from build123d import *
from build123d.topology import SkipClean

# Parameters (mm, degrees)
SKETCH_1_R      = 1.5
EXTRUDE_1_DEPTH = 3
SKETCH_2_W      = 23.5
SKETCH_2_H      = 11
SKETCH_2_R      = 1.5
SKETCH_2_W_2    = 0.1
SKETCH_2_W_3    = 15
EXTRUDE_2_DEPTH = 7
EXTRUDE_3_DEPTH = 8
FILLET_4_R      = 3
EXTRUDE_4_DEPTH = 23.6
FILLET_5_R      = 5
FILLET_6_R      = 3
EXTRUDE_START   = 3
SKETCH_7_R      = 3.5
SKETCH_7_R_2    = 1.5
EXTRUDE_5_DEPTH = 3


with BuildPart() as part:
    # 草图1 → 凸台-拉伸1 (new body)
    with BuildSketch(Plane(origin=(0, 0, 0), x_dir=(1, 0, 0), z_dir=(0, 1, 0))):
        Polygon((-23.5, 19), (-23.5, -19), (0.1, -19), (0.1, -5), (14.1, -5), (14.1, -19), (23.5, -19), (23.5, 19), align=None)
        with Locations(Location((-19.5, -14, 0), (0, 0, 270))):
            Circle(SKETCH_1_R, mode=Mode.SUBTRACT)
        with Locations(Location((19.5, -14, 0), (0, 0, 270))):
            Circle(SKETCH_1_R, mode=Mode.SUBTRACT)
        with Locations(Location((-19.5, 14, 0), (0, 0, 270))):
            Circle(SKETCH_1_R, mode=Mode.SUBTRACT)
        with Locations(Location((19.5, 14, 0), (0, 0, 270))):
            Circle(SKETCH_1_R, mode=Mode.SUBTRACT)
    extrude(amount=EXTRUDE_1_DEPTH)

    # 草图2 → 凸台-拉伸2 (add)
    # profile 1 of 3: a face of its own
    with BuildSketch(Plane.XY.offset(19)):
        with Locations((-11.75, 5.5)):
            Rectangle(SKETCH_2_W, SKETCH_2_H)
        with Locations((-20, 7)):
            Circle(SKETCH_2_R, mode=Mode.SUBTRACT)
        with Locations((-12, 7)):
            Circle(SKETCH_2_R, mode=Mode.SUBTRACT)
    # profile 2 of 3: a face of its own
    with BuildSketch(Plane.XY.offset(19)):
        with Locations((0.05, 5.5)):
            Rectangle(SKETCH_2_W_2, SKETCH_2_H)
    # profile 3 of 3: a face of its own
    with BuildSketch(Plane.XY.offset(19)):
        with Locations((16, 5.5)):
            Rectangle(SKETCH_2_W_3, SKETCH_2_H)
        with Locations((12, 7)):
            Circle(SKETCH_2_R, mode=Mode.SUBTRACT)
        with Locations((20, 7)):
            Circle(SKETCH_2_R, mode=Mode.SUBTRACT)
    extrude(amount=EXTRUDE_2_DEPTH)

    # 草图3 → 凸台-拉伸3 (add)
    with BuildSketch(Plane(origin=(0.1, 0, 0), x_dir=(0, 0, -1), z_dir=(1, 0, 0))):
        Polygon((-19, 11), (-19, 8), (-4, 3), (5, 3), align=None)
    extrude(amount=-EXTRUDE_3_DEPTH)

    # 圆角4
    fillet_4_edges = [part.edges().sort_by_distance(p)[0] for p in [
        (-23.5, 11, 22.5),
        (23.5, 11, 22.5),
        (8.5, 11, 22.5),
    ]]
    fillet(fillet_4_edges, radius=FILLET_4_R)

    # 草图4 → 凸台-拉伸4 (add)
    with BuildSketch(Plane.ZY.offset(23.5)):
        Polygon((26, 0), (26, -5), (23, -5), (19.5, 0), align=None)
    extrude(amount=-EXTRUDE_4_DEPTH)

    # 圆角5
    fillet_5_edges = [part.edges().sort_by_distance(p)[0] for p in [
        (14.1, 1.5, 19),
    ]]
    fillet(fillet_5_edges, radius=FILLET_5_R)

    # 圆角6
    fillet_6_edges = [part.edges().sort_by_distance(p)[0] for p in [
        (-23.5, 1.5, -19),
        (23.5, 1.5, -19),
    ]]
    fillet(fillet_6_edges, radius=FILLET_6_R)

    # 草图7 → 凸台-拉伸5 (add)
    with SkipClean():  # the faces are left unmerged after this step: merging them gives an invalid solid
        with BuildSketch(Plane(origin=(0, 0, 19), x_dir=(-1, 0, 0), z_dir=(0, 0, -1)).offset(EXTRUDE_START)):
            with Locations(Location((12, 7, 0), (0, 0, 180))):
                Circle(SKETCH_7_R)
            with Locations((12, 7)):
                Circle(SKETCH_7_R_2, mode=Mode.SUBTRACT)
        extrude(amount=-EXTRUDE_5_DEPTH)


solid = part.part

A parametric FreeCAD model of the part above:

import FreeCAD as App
import Part
import Sketcher


def edges_at(feature, points):
    """Names of the edges that pass closest to the given points."""
    edges = feature.Shape.Edges
    near = lambda p: min(range(len(edges)), key=lambda i: edges[i].distToShape(Part.Vertex(*p))[0])
    return sorted({f"Edge{near(p) + 1}" for p in points})

doc = App.newDocument("Part")
body = doc.addObject("PartDesign::Body", "Body")

sketch1 = body.newObject("Sketcher::SketchObject", "Sketch")
sketch1.AttachmentSupport = (doc.getObject("XZ_Plane"), [""])
sketch1.MapMode = "FlatFace"
sketch1.addGeometry([
    Part.LineSegment(App.Vector(-23.5, -19, 0), App.Vector(-23.5, 19, 0)),
    Part.LineSegment(App.Vector(-23.5, 19, 0), App.Vector(0.1, 19, 0)),
    Part.LineSegment(App.Vector(0.1, 19, 0), App.Vector(0.1, 5, 0)),
    Part.LineSegment(App.Vector(0.1, 5, 0), App.Vector(14.1, 5, 0)),
    Part.LineSegment(App.Vector(14.1, 5, 0), App.Vector(14.1, 19, 0)),
    Part.LineSegment(App.Vector(14.1, 19, 0), App.Vector(23.5, 19, 0)),
    Part.LineSegment(App.Vector(23.5, 19, 0), App.Vector(23.5, -19, 0)),
    Part.LineSegment(App.Vector(23.5, -19, 0), App.Vector(-23.5, -19, 0)),
    Part.Circle(App.Vector(-19.5, 14, 0), App.Vector(0, 0, 1), 1.5),
    Part.Circle(App.Vector(19.5, 14, 0), App.Vector(0, 0, 1), 1.5),
    Part.Circle(App.Vector(-19.5, -14, 0), App.Vector(0, 0, 1), 1.5),
    Part.Circle(App.Vector(19.5, -14, 0), App.Vector(0, 0, 1), 1.5),
], False)
sketch1.addConstraint([
    Sketcher.Constraint("Coincident", 0, 2, 1, 1),
    Sketcher.Constraint("Coincident", 1, 2, 2, 1),
    Sketcher.Constraint("Coincident", 2, 2, 3, 1),
    Sketcher.Constraint("Coincident", 3, 2, 4, 1),
    Sketcher.Constraint("Coincident", 4, 2, 5, 1),
    Sketcher.Constraint("Coincident", 5, 2, 6, 1),
    Sketcher.Constraint("Coincident", 6, 2, 7, 1),
    Sketcher.Constraint("Coincident", 7, 2, 0, 1),
    Sketcher.Constraint("Vertical", 0),
    Sketcher.Constraint("Horizontal", 1),
    Sketcher.Constraint("Vertical", 2),
    Sketcher.Constraint("Horizontal", 3),
    Sketcher.Constraint("Vertical", 4),
    Sketcher.Constraint("Horizontal", 5),
    Sketcher.Constraint("Vertical", 6),
    Sketcher.Constraint("Horizontal", 7),
    Sketcher.Constraint("Equal", 8, 9),
    Sketcher.Constraint("Equal", 9, 10),
    Sketcher.Constraint("Equal", 10, 11),
    Sketcher.Constraint("Symmetric", 9, 3, 10, 3, -1, 1),
    Sketcher.Constraint("Symmetric", 8, 3, 11, 3, -1, 1),
    Sketcher.Constraint("Symmetric", 0, 2, 6, 2, -1, 1),
    Sketcher.Constraint("Symmetric", 8, 3, 9, 3, -2),
    Sketcher.Constraint("Horizontal", 1, 2, 4, 2),
    Sketcher.Constraint("Equal", 3, 2),
    Sketcher.Constraint("Diameter", 8, 3.0),
    Sketcher.Constraint("DistanceX", 3, 1, 3, 2, 14.0),
    Sketcher.Constraint("DistanceX", 7, 2, 7, 1, 47.0),
    Sketcher.Constraint("DistanceY", 0, 1, 0, 2, 38.0),
    Sketcher.Constraint("DistanceX", 1, 1, 1, 2, 23.6),
    Sketcher.Constraint("DistanceY", -1, 1, 8, 3, 14.0),
    Sketcher.Constraint("DistanceX", 8, 3, 9, 3, 39.0),
])
pad1 = body.newObject("PartDesign::Pad", "Pad")
pad1.Profile = sketch1
pad1.Length = 3
pad1.Reversed = True

sketch2 = body.newObject("Sketcher::SketchObject", "Sketch001")
sketch2.AttachmentSupport = (doc.getObject("XY_Plane"), [""])
sketch2.MapMode = "FlatFace"
sketch2.AttachmentOffset = App.Placement(App.Vector(0, 0, 19), App.Rotation())
sketch2.addGeometry([
    Part.LineSegment(App.Vector(-23.5, 11, 0), App.Vector(-23.5, 0, 0)),
    Part.LineSegment(App.Vector(-23.5, 0, 0), App.Vector(0.1, 0, 0)),
    Part.LineSegment(App.Vector(0.1, 0, 0), App.Vector(0.1, 11, 0)),
    Part.LineSegment(App.Vector(0.1, 11, 0), App.Vector(-23.5, 11, 0)),
    Part.Circle(App.Vector(-20, 7, 0), App.Vector(0, 0, 1), 1.5),
    Part.Circle(App.Vector(-12, 7, 0), App.Vector(0, 0, 1), 1.5),
    Part.LineSegment(App.Vector(8.5, 11, 0), App.Vector(8.5, 0, 0)),
    Part.LineSegment(App.Vector(8.5, 0, 0), App.Vector(23.5, 0, 0)),
    Part.LineSegment(App.Vector(23.5, 0, 0), App.Vector(23.5, 11, 0)),
    Part.LineSegment(App.Vector(23.5, 11, 0), App.Vector(8.5, 11, 0)),
    Part.Circle(App.Vector(12, 7, 0), App.Vector(0, 0, 1), 1.5),
    Part.Circle(App.Vector(20, 7, 0), App.Vector(0, 0, 1), 1.5),
], False)
sketch2.addConstraint([
    Sketcher.Constraint("Coincident", 0, 2, 1, 1),
    Sketcher.Constraint("Coincident", 1, 2, 2, 1),
    Sketcher.Constraint("Coincident", 2, 2, 3, 1),
    Sketcher.Constraint("Coincident", 3, 2, 0, 1),
    Sketcher.Constraint("Coincident", 6, 2, 7, 1),
    Sketcher.Constraint("Coincident", 7, 2, 8, 1),
    Sketcher.Constraint("Coincident", 8, 2, 9, 1),
    Sketcher.Constraint("Coincident", 9, 2, 6, 1),
    Sketcher.Constraint("Vertical", 0),
    Sketcher.Constraint("Horizontal", 1),
    Sketcher.Constraint("Vertical", 2),
    Sketcher.Constraint("Horizontal", 3),
    Sketcher.Constraint("Vertical", 6),
    Sketcher.Constraint("Horizontal", 7),
    Sketcher.Constraint("Vertical", 8),
    Sketcher.Constraint("Horizontal", 9),
    Sketcher.Constraint("Equal", 4, 5),
    Sketcher.Constraint("Equal", 5, 10),
    Sketcher.Constraint("Equal", 10, 11),
    Sketcher.Constraint("Symmetric", 0, 2, 7, 2, -1, 1),
    Sketcher.Constraint("Symmetric", 5, 3, 10, 3, -2),
    Sketcher.Constraint("Symmetric", 4, 3, 11, 3, -2),
    Sketcher.Constraint("PointOnObject", 0, 2, -1),
    Sketcher.Constraint("Horizontal", 4, 3, 5, 3),
    Sketcher.Constraint("Horizontal", 3, 2, 8, 2),
    Sketcher.Constraint("Diameter", 4, 3.0),
    Sketcher.Constraint("DistanceX", 7, 1, 7, 2, 15.0),
    Sketcher.Constraint("DistanceY", 0, 2, 0, 1, 11.0),
    Sketcher.Constraint("DistanceX", 1, 1, 1, 2, 23.6),
    Sketcher.Constraint("DistanceX", 4, 3, -1, 1, 20.0),
    Sketcher.Constraint("DistanceY", -1, 1, 4, 3, 7.0),
    Sketcher.Constraint("DistanceX", 5, 3, -1, 1, 12.0),
    Sketcher.Constraint("DistanceX", 0, 2, -1, 1, 23.5),
])
pad2 = body.newObject("PartDesign::Pad", "Pad001")
pad2.Profile = sketch2
pad2.Length = 7

sketch3 = body.newObject("Sketcher::SketchObject", "Sketch002")
sketch3.AttachmentSupport = (doc.getObject("YZ_Plane"), [""])
sketch3.MapMode = "FlatFace"
sketch3.AttachmentOffset = App.Placement(App.Vector(0, 0, 0.1), App.Rotation())
sketch3.addGeometry([
    Part.LineSegment(App.Vector(11, 19, 0), App.Vector(8, 19, 0)),
    Part.LineSegment(App.Vector(8, 19, 0), App.Vector(3, 4, 0)),
    Part.LineSegment(App.Vector(3, 4, 0), App.Vector(3, -5, 0)),
    Part.LineSegment(App.Vector(3, -5, 0), App.Vector(11, 19, 0)),
], False)
sketch3.addConstraint([
    Sketcher.Constraint("Coincident", 0, 2, 1, 1),
    Sketcher.Constraint("Coincident", 1, 2, 2, 1),
    Sketcher.Constraint("Coincident", 2, 2, 3, 1),
    Sketcher.Constraint("Coincident", 3, 2, 0, 1),
    Sketcher.Constraint("Horizontal", 0),
    Sketcher.Constraint("Vertical", 2),
    Sketcher.Constraint("Parallel", 1, 3),
    Sketcher.Constraint("DistanceX", 0, 2, 0, 1, 3.0),
    Sketcher.Constraint("DistanceY", 2, 2, 2, 1, 9.0),
    Sketcher.Constraint("DistanceX", -1, 1, 0, 2, 8.0),
    Sketcher.Constraint("DistanceY", -1, 1, 0, 2, 19.0),
    Sketcher.Constraint("DistanceX", -1, 1, 1, 2, 3.0),
])
pad3 = body.newObject("PartDesign::Pad", "Pad002")
pad3.Profile = sketch3
pad3.Length = 8
pad3.Reversed = True
doc.recompute()

fillet = body.newObject("PartDesign::Fillet", "Fillet")
fillet.Base = (pad3, edges_at(pad3, [(-23.5, 11, 22.5), (23.5, 11, 22.5), (8.5, 11, 22.5)]))
fillet.Radius = 3

sketch4 = body.newObject("Sketcher::SketchObject", "Sketch003")
sketch4.AttachmentSupport = (doc.getObject("YZ_Plane"), [""])
sketch4.MapMode = "FlatFace"
sketch4.AttachmentOffset = App.Placement(App.Vector(0, 0, -23.5), App.Rotation())
sketch4.addGeometry([
    Part.LineSegment(App.Vector(-5, 26, 0), App.Vector(0, 26, 0)),
    Part.LineSegment(App.Vector(0, 26, 0), App.Vector(0, 19.5, 0)),
    Part.LineSegment(App.Vector(0, 19.5, 0), App.Vector(-5, 23, 0)),
    Part.LineSegment(App.Vector(-5, 23, 0), App.Vector(-5, 26, 0)),
], False)
sketch4.addConstraint([
    Sketcher.Constraint("Coincident", 0, 2, 1, 1),
    Sketcher.Constraint("Coincident", 1, 2, 2, 1),
    Sketcher.Constraint("Coincident", 2, 2, 3, 1),
    Sketcher.Constraint("Coincident", 3, 2, 0, 1),
    Sketcher.Constraint("Horizontal", 0),
    Sketcher.Constraint("Vertical", 1),
    Sketcher.Constraint("Vertical", 3),
    Sketcher.Constraint("PointOnObject", 0, 2, -2),
    Sketcher.Constraint("DistanceX", 0, 1, 0, 2, 5.0),
    Sketcher.Constraint("DistanceY", 3, 1, 3, 2, 3.0),
    Sketcher.Constraint("DistanceY", 1, 2, 1, 1, 6.5),
    Sketcher.Constraint("DistanceY", -1, 1, 0, 2, 26.0),
])
pad4 = body.newObject("PartDesign::Pad", "Pad003")
pad4.Profile = sketch4
pad4.Length = 23.6
doc.recompute()

fillet2 = body.newObject("PartDesign::Fillet", "Fillet001")
fillet2.Base = (pad4, edges_at(pad4, [(14.1, 1.5, 19)]))
fillet2.Radius = 5
doc.recompute()

fillet3 = body.newObject("PartDesign::Fillet", "Fillet002")
fillet3.Base = (fillet2, edges_at(fillet2, [(-23.5, 1.5, -19), (23.5, 1.5, -19)]))
fillet3.Radius = 3

sketch5 = body.newObject("Sketcher::SketchObject", "Sketch004")
sketch5.AttachmentSupport = (doc.getObject("XY_Plane"), [""])
sketch5.MapMode = "FlatFace"
sketch5.AttachmentOffset = App.Placement(App.Vector(0, 0, 16), App.Rotation())
sketch5.addGeometry([
    Part.Circle(App.Vector(-12, 7, 0), App.Vector(0, 0, 1), 3.5),
    Part.Circle(App.Vector(-12, 7, 0), App.Vector(0, 0, 1), 1.5),
], False)
sketch5.addConstraint([
    Sketcher.Constraint("Coincident", 1, 3, 0, 3),
    Sketcher.Constraint("Diameter", 0, 7.0),
    Sketcher.Constraint("Diameter", 1, 3.0),
    Sketcher.Constraint("DistanceX", 0, 3, -1, 1, 12.0),
    Sketcher.Constraint("DistanceY", -1, 1, 0, 3, 7.0),
])
pad5 = body.newObject("PartDesign::Pad", "Pad004")
pad5.Profile = sketch5
pad5.Length = 3

doc.recompute()
